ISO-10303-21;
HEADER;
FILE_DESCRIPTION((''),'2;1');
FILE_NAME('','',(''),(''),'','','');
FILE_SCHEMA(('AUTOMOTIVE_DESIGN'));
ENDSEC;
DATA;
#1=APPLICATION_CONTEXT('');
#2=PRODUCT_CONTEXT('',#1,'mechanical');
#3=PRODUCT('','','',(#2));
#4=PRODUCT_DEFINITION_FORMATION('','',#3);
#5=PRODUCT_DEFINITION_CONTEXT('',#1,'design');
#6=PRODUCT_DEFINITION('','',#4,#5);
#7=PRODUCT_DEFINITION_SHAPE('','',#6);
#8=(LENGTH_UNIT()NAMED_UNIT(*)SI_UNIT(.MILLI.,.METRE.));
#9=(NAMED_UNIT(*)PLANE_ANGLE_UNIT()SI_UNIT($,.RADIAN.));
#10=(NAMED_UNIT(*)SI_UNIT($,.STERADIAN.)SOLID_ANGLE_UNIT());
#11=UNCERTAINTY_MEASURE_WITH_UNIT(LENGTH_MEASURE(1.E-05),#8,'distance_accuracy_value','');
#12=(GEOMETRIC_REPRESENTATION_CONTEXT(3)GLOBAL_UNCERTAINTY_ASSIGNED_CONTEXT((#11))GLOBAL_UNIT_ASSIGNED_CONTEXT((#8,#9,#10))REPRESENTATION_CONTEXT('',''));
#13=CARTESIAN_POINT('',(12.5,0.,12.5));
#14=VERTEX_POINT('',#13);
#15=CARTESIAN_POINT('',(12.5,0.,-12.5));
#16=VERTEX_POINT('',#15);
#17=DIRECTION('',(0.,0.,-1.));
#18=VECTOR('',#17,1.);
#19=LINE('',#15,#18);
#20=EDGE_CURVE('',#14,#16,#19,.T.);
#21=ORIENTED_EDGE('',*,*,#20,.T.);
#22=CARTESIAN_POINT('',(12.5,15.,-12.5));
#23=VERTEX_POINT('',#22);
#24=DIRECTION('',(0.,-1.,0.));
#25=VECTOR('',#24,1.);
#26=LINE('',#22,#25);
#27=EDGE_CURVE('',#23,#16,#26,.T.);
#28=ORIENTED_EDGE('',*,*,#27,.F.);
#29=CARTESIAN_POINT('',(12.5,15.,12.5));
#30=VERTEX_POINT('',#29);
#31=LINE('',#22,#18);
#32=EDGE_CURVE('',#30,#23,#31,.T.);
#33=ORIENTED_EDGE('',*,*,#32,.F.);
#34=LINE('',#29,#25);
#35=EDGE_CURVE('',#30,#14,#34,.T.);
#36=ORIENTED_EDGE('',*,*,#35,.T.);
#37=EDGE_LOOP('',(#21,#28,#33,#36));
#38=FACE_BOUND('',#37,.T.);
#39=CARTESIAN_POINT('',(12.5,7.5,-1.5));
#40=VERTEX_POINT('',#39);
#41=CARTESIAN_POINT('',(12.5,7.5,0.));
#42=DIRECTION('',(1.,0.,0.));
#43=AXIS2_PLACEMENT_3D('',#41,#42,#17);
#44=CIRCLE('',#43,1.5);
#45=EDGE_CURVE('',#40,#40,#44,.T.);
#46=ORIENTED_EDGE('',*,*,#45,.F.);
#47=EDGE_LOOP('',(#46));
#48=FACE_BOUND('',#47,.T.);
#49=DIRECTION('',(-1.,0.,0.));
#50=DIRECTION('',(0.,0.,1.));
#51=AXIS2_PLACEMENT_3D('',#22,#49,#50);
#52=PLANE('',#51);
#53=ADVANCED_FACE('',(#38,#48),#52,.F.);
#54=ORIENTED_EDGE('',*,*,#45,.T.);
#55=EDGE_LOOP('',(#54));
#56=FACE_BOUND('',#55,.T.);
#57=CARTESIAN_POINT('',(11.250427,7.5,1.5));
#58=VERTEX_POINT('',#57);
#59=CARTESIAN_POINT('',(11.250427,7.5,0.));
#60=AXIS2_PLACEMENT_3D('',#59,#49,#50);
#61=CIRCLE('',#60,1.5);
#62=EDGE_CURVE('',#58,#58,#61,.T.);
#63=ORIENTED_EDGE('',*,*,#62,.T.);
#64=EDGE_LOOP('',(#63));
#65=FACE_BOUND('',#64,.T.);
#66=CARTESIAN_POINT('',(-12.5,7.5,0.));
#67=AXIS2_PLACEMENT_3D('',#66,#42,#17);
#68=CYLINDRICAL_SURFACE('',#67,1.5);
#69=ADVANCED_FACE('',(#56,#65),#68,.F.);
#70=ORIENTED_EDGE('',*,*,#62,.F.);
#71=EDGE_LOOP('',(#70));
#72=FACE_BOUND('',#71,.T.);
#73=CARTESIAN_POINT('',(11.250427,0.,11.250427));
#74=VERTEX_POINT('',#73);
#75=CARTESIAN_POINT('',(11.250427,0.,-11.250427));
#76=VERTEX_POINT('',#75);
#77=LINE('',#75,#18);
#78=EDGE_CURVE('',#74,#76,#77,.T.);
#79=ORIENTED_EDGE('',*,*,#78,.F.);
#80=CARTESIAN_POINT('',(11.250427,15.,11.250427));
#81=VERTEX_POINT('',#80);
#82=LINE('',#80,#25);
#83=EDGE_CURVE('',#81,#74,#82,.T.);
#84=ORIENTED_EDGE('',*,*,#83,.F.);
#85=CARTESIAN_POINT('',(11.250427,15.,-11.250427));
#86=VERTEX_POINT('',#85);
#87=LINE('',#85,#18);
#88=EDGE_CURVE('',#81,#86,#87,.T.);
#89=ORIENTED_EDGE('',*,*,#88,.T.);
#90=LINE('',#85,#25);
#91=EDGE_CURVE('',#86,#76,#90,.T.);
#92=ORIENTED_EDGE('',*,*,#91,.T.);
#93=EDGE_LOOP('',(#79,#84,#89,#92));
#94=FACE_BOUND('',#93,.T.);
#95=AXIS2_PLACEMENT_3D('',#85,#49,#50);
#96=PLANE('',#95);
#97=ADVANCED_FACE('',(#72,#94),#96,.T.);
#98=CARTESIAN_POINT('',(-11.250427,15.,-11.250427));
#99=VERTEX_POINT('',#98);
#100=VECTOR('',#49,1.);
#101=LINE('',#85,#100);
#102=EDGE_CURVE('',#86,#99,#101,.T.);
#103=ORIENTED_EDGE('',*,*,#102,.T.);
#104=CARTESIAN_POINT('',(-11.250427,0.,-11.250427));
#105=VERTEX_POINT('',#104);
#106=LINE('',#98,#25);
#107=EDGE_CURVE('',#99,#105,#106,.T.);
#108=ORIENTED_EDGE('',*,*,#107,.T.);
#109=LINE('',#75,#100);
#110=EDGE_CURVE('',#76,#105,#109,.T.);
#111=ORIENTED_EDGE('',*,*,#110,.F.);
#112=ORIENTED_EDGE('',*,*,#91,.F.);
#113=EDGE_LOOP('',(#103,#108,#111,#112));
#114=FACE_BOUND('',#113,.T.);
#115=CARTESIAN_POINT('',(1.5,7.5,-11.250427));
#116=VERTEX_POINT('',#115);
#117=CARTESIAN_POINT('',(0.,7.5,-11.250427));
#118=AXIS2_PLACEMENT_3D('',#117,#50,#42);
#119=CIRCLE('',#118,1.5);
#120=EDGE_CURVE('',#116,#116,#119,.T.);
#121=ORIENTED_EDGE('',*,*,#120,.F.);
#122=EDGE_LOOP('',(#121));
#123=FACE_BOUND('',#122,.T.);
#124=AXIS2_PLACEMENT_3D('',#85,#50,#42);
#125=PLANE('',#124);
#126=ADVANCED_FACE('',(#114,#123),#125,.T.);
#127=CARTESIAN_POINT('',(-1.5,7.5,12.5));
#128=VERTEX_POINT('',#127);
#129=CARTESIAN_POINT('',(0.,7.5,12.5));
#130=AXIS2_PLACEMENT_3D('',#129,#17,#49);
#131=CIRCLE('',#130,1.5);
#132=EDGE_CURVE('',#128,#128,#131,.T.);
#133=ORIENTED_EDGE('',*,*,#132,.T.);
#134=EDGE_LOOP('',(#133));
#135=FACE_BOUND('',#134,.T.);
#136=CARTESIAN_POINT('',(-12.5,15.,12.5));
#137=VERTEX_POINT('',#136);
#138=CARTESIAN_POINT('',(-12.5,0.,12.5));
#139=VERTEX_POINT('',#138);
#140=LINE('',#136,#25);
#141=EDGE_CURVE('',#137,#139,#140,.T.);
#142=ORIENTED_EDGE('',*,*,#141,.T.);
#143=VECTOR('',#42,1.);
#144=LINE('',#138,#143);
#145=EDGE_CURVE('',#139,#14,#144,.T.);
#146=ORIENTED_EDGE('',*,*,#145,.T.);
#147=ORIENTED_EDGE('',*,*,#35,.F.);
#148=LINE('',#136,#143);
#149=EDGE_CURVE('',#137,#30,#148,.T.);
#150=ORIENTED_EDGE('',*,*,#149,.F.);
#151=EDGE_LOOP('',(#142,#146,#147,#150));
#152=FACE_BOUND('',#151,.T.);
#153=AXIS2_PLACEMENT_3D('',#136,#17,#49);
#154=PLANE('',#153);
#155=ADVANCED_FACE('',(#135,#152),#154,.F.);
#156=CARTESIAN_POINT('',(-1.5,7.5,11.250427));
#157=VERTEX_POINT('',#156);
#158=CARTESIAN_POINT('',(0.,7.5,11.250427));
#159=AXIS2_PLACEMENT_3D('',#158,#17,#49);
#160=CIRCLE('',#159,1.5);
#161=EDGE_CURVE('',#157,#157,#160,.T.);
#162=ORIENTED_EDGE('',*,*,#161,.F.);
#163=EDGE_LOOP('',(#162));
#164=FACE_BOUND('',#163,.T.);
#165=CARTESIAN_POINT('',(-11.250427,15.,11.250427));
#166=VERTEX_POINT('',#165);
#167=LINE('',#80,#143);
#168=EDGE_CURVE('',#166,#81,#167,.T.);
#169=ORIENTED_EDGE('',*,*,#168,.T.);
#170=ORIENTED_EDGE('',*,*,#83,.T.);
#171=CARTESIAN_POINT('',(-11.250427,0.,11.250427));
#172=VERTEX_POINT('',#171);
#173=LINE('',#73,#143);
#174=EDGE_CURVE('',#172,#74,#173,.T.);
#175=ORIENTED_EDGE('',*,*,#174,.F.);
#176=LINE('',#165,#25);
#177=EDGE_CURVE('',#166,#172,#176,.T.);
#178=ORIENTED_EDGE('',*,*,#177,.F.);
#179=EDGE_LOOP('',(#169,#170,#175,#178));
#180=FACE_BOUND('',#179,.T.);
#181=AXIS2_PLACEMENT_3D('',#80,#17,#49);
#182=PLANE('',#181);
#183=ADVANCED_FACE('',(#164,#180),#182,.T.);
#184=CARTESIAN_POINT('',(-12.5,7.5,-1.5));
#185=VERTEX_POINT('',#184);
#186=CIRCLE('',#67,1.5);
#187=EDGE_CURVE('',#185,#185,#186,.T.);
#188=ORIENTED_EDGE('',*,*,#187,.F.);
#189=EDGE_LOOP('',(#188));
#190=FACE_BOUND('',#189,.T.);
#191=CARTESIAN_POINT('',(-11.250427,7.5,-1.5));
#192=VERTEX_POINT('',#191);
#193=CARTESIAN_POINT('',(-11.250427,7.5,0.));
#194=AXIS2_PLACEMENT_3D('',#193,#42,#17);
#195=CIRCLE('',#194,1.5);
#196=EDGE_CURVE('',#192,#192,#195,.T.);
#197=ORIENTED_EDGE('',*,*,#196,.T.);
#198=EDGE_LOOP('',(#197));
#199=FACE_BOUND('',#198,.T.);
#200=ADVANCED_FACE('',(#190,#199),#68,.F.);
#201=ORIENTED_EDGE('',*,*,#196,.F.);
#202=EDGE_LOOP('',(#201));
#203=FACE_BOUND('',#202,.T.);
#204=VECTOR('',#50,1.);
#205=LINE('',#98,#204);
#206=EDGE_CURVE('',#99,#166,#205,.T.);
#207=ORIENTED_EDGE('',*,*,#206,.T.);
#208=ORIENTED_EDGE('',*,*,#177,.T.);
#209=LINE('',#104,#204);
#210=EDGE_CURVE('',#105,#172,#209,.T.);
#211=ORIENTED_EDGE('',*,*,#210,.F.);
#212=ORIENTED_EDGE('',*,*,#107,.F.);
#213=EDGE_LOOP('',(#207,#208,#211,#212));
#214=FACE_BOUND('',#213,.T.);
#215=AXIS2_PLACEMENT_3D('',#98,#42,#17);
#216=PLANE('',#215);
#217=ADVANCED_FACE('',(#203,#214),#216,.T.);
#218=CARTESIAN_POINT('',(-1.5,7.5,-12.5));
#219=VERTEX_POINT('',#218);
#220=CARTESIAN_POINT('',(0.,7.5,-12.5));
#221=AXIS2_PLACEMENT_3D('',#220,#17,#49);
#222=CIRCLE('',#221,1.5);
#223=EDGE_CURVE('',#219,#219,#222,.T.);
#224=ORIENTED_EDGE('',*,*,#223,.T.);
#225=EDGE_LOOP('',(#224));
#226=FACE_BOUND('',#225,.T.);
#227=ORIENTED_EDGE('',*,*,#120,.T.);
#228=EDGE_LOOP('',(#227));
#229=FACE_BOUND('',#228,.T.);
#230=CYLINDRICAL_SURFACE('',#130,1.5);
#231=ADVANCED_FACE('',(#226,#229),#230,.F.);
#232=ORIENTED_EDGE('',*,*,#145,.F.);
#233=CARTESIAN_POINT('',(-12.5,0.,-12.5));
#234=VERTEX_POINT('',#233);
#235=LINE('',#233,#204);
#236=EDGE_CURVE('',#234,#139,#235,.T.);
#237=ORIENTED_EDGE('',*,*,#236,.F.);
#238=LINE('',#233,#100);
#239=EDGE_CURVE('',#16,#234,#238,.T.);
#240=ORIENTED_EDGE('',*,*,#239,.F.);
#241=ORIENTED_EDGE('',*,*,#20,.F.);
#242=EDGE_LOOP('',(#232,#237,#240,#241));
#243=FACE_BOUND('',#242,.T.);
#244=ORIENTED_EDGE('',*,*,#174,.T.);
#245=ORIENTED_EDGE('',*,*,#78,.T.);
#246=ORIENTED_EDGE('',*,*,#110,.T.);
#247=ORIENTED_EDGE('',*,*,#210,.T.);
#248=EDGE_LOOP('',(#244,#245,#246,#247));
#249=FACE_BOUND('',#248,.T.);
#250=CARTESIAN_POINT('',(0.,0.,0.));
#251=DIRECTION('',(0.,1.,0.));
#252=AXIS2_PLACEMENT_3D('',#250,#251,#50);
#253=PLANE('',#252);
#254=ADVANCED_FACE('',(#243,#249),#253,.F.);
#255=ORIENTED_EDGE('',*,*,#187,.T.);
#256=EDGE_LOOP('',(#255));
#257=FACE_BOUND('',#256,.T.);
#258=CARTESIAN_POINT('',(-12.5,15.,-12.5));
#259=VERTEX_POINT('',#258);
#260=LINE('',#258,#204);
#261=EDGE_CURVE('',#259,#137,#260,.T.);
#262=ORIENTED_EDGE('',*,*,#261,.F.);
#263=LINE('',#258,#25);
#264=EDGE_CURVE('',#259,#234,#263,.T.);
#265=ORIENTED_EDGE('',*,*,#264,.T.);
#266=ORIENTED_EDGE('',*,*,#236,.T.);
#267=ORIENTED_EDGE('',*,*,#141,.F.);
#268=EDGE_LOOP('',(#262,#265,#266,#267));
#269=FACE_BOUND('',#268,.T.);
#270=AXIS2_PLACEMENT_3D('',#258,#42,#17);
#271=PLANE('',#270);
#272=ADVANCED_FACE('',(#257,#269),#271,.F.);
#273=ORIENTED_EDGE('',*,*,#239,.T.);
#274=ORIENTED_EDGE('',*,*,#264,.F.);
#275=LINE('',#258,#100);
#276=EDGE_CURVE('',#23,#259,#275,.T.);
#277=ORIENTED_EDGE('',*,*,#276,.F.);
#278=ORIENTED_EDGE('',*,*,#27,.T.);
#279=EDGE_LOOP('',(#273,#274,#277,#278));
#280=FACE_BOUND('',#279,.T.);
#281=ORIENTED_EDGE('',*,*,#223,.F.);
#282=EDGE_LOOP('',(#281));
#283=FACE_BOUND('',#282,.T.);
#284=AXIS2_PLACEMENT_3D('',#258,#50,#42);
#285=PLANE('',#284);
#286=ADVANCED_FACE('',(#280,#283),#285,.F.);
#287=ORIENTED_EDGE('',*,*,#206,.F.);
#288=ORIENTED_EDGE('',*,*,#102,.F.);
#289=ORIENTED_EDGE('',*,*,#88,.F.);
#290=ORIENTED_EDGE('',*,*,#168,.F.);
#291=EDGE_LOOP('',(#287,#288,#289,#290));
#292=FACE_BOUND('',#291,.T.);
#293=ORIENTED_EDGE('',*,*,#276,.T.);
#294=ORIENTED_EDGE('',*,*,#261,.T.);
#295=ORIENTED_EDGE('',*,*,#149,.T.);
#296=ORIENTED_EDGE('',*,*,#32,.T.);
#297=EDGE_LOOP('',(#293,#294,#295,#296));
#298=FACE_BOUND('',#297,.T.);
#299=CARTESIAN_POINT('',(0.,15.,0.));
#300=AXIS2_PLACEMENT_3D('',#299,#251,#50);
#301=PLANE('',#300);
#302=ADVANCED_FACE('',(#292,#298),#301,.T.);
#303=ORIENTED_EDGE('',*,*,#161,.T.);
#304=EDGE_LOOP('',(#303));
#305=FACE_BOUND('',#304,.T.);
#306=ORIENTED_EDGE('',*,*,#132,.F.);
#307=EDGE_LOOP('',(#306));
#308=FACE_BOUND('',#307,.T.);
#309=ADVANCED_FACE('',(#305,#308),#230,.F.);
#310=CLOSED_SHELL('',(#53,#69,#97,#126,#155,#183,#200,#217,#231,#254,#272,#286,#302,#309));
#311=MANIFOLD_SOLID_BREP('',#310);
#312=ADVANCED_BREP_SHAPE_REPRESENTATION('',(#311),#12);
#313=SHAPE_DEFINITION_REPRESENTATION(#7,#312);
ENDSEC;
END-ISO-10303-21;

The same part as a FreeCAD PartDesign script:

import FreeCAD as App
import Part
import Sketcher
from FreeCAD import Vector


def add_polygon(sketch, points):
    """Adds a closed chain of lines whose ends are joined by coincident constraints."""
    first, n = sketch.GeometryCount, len(points)
    for a, b in zip(points, points[1:] + points[:1]):
        sketch.addGeometry(Part.LineSegment(App.Vector(*a, 0), App.Vector(*b, 0)), False)
    for i in range(n):
        sketch.addConstraint(Sketcher.Constraint("Coincident", first + i, 2, first + (i + 1) % n, 1))

doc = App.newDocument("Part")
body = doc.addObject("PartDesign::Body", "Body")

# Sketch on XZ plane
sketch1 = body.newObject("Sketcher::SketchObject", "Sketch")
sketch1.AttachmentSupport = (doc.getObject("XZ_Plane"), [""])
sketch1.MapMode = "FlatFace"
add_polygon(sketch1, [(-12, -12), (-12, 12), (12, 12), (12, -12)])  # lines 0-3
add_polygon(sketch1, [(11, 11), (-11, 11), (-11, -11), (11, -11)])  # lines 4-7
sketch1.addConstraint([
    Sketcher.Constraint("Vertical", 0),
    Sketcher.Constraint("Horizontal", 1),
    Sketcher.Constraint("Vertical", 2),
    Sketcher.Constraint("Horizontal", 3),
    Sketcher.Constraint("Horizontal", 4),
    Sketcher.Constraint("Vertical", 5),
    Sketcher.Constraint("Horizontal", 6),
    Sketcher.Constraint("Vertical", 7),
    Sketcher.Constraint("Symmetric", 0, 2, 2, 2, -1, 1),
    Sketcher.Constraint("Symmetric", 4, 2, 6, 2, -1, 1),
    Sketcher.Constraint("Equal", 3, 0),
    Sketcher.Constraint("Equal", 6, 5),
    Sketcher.Constraint("DistanceX", 1, 1, 1, 2, 25.0),
    Sketcher.Constraint("DistanceX", 4, 2, 4, 1, 22.500853),
])
pad1 = body.newObject("PartDesign::Pad", "Pad")
pad1.Profile = sketch1
pad1.Length = 15
pad1.Reversed = True

# Sketch on XY plane
sketch2 = body.newObject("Sketcher::SketchObject", "Sketch001")
sketch2.AttachmentSupport = (doc.getObject("XY_Plane"), [""])
sketch2.MapMode = "FlatFace"
sketch2.AttachmentOffset = App.Placement(Vector(0, 0, -12.5), App.Rotation())
sketch2.addGeometry(Part.Circle(Vector(0, 7.5, 0), Vector(0, 0, 1), 1.5), False)
sketch2.addConstraint([
    Sketcher.Constraint("PointOnObject", 0, 3, -2),
    Sketcher.Constraint("Diameter", 0, 3.0),
    Sketcher.Constraint("DistanceY", -1, 1, 0, 3, 7.5),
])
pocket1 = body.newObject("PartDesign::Pocket", "Pocket")
pocket1.Profile = sketch2
pocket1.Type = "ThroughAll"
pocket1.Reversed = True

# Sketch on YZ plane
sketch3 = body.newObject("Sketcher::SketchObject", "Sketch002")
sketch3.AttachmentSupport = (doc.getObject("YZ_Plane"), [""])
sketch3.MapMode = "FlatFace"
sketch3.AttachmentOffset = App.Placement(Vector(0, 0, 12.5), App.Rotation())
sketch3.addGeometry(Part.Circle(Vector(7.5, 0, 0), Vector(0, 0, 1), 1.5), False)
sketch3.addConstraint([
    Sketcher.Constraint("PointOnObject", 0, 3, -1),
    Sketcher.Constraint("Diameter", 0, 3.0),
    Sketcher.Constraint("DistanceX", -1, 1, 0, 3, 7.5),
])
pocket2 = body.newObject("PartDesign::Pocket", "Pocket001")
pocket2.Profile = sketch3
pocket2.Type = "ThroughAll"

doc.recompute()
